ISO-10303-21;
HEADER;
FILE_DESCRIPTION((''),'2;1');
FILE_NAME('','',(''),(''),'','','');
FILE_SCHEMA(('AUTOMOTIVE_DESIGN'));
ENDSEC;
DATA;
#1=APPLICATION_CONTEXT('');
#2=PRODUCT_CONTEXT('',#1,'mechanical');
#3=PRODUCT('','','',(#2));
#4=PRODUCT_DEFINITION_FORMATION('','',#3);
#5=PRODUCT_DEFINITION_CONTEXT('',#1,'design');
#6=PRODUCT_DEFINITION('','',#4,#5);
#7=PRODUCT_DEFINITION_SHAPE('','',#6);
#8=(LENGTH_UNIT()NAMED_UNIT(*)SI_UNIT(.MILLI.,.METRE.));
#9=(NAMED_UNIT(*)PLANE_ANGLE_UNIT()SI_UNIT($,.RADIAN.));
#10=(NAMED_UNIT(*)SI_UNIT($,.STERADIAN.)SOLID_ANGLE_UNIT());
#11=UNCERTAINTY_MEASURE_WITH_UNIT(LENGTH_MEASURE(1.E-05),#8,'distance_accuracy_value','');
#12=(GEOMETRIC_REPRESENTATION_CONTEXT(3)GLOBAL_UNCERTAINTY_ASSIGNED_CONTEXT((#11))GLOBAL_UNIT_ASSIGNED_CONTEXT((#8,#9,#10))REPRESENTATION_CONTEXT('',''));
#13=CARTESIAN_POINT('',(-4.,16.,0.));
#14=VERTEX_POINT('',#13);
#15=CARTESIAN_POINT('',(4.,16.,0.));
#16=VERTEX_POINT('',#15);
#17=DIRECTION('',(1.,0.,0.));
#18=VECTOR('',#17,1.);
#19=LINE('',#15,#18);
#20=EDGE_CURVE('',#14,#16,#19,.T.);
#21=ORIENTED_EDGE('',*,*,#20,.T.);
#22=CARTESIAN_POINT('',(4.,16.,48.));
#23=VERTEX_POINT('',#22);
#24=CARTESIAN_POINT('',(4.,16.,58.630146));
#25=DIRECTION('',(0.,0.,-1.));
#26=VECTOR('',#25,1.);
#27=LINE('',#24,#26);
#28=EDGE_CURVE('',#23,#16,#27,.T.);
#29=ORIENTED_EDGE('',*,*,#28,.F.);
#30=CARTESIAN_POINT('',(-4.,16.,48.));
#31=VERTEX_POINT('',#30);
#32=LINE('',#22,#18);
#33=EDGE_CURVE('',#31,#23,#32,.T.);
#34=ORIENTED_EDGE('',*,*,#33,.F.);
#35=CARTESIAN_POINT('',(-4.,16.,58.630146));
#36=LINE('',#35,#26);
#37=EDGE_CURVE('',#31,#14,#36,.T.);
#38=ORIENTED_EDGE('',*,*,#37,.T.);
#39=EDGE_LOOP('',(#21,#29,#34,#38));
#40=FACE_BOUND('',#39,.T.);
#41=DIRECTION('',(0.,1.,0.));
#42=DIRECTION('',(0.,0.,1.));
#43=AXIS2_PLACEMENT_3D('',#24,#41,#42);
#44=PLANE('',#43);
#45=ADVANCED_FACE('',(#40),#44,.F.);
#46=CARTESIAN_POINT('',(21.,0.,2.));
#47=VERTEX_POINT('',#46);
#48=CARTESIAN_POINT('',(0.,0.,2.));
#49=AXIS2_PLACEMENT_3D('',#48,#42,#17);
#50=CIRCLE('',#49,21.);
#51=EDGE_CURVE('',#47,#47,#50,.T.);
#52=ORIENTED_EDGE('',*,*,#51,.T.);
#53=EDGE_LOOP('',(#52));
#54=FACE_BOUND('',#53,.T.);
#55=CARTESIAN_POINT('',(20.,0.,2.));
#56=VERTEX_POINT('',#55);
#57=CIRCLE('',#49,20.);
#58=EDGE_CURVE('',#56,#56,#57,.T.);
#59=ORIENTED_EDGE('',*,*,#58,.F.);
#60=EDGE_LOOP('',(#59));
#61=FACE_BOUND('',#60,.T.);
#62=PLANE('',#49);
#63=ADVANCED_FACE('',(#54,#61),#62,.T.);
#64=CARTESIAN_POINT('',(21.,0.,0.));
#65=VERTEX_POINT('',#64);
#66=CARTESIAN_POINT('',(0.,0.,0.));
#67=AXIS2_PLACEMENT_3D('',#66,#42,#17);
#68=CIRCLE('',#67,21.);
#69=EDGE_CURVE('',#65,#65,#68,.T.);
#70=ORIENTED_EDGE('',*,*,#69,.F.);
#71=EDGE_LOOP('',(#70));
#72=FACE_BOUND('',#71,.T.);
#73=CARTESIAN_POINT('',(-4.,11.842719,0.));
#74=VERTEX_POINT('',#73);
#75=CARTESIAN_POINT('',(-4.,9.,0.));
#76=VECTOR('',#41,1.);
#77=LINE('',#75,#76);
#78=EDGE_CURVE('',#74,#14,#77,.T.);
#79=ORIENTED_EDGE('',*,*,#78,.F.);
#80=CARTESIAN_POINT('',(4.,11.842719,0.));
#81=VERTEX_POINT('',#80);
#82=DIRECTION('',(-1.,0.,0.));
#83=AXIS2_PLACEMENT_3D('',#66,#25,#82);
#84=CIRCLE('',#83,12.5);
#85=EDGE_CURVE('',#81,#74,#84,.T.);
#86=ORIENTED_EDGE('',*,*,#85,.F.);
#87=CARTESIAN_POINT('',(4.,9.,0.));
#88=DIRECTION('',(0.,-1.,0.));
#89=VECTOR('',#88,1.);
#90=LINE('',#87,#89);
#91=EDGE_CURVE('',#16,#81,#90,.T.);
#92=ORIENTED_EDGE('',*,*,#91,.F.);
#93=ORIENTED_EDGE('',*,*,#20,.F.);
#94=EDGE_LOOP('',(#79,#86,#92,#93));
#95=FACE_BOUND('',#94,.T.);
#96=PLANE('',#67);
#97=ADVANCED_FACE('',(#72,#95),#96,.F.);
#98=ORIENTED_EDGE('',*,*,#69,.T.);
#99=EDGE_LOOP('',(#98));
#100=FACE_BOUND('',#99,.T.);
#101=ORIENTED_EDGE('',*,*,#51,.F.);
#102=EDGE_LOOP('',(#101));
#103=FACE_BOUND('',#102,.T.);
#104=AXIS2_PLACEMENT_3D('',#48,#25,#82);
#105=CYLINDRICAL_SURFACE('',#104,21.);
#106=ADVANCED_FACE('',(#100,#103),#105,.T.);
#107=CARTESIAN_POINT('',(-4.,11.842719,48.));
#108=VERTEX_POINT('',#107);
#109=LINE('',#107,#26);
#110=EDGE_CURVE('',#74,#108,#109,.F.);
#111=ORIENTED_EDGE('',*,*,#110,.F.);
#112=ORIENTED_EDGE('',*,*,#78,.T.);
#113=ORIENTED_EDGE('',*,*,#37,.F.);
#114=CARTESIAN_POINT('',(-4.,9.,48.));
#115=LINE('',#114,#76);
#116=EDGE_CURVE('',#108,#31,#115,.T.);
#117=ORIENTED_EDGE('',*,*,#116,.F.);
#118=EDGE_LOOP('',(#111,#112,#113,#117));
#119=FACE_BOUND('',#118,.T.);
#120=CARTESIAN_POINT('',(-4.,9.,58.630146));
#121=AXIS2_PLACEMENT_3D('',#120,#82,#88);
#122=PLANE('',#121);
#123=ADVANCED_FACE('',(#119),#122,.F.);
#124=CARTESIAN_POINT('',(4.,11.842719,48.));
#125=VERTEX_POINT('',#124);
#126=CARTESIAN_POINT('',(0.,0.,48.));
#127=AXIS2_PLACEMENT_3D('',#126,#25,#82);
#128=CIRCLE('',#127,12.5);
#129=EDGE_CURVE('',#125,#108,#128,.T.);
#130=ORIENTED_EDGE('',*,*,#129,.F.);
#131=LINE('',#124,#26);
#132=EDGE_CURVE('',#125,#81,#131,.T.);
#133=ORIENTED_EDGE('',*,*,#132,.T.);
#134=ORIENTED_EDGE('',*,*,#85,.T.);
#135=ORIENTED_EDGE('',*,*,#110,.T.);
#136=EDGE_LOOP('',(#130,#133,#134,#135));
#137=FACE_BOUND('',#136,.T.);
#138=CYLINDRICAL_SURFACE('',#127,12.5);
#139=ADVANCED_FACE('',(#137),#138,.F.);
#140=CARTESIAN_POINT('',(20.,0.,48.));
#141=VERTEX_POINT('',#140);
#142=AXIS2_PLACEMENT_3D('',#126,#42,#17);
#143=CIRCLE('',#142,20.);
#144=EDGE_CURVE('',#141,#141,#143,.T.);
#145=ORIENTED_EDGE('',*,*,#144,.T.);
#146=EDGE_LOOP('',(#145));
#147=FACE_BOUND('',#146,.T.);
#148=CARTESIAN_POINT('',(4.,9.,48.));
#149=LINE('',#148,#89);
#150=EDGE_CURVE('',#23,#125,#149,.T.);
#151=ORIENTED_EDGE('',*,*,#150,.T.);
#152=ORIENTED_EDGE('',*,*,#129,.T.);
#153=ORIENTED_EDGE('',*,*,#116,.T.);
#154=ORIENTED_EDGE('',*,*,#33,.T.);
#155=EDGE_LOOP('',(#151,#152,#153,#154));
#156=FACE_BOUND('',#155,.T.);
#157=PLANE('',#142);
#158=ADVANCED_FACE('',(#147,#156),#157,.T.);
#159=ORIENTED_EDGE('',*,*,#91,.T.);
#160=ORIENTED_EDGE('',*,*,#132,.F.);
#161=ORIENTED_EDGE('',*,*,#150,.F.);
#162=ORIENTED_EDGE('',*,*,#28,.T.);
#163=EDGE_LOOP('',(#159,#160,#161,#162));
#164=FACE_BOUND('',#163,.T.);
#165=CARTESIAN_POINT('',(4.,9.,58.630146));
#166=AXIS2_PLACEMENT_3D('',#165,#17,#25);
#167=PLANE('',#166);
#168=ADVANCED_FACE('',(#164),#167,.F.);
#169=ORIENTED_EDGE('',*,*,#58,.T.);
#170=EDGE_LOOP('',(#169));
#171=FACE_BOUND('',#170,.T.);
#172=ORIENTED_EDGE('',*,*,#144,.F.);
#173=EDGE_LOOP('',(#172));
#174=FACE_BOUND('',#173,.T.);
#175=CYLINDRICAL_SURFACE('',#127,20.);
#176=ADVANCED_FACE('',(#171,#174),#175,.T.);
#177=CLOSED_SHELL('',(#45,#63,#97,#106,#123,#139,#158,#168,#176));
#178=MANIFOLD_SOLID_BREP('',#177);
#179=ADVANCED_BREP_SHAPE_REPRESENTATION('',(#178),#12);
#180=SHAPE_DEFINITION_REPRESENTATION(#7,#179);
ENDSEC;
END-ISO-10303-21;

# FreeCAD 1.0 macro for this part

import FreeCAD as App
import Part
import Sketcher
Q = App.Units.Quantity

doc = App.newDocument("Part")
body = doc.addObject("PartDesign::Body", "Body")

# Sketch on XY plane
sketch1 = body.newObject("Sketcher::SketchObject", "Sketch")
sketch1.AttachmentSupport = (doc.getObject("XY_Plane"), [""])
sketch1.MapMode = "FlatFace"
sketch1.addGeometry(Part.Circle(App.Vector(0, 0, 0), App.Vector(0, 0, 1), 21), False)
sketch1.addConstraint([
    Sketcher.Constraint("Coincident", 0, 3, -1, 1),
    Sketcher.Constraint("Diameter", 0, Q("42 mm")),
])
pad1 = body.newObject("PartDesign::Pad", "Pad")
pad1.Profile = sketch1
pad1.Length = 2

# Sketch on XY plane
sketch2 = body.newObject("Sketcher::SketchObject", "Sketch001")
sketch2.AttachmentSupport = (doc.getObject("XY_Plane"), [""])
sketch2.MapMode = "FlatFace"
sketch2.AttachmentOffset = App.Placement(App.Vector(0, 0, 2), App.Rotation())
sketch2.addGeometry(Part.Circle(App.Vector(0, 0, 0), App.Vector(0, 0, 1), 20), False)
sketch2.addConstraint([
    Sketcher.Constraint("Coincident", 0, 3, -1, 1),
    Sketcher.Constraint("Diameter", 0, Q("40 mm")),
])
pad2 = body.newObject("PartDesign::Pad", "Pad001")
pad2.Profile = sketch2
pad2.Length = 46

# Sketch on XY plane
sketch3 = body.newObject("Sketcher::SketchObject", "Sketch002")
sketch3.AttachmentSupport = (doc.getObject("XY_Plane"), [""])
sketch3.MapMode = "FlatFace"
sketch3.addGeometry(Part.Circle(App.Vector(0, 0, 0), App.Vector(0, 0, 1), 12), False)
sketch3.addConstraint([
    Sketcher.Constraint("Coincident", 0, 3, -1, 1),
    Sketcher.Constraint("Diameter", 0, Q("25 mm")),
])
pocket1 = body.newObject("PartDesign::Pocket", "Pocket")
pocket1.Profile = sketch3
pocket1.Type = "ThroughAll"
pocket1.Reversed = True

# Sketch on XY plane
sketch4 = body.newObject("Sketcher::SketchObject", "Sketch003")
sketch4.AttachmentSupport = (doc.getObject("XY_Plane"), [""])
sketch4.MapMode = "FlatFace"
sketch4.addGeometry([
    Part.LineSegment(App.Vector(4, 16, 0), App.Vector(4, 9, 0)),
    Part.LineSegment(App.Vector(4, 9, 0), App.Vector(-4, 9, 0)),
    Part.LineSegment(App.Vector(-4, 9, 0), App.Vector(-4, 16, 0)),
    Part.LineSegment(App.Vector(-4, 16, 0), App.Vector(4, 16, 0)),
], False)
sketch4.addConstraint([
    Sketcher.Constraint("Coincident", 0, 2, 1, 1),
    Sketcher.Constraint("Coincident", 1, 2, 2, 1),
    Sketcher.Constraint("Coincident", 2, 2, 3, 1),
    Sketcher.Constraint("Coincident", 3, 2, 0, 1),
    Sketcher.Constraint("Vertical", 0),
    Sketcher.Constraint("Horizontal", 1),
    Sketcher.Constraint("Vertical", 2),
    Sketcher.Constraint("Horizontal", 3),
    Sketcher.Constraint("DistanceX", 1, 2, 1, 1, Q("8 mm")),
    Sketcher.Constraint("DistanceY", 0, 2, 0, 1, Q("7 mm")),
    Sketcher.Constraint("DistanceX", -1, 1, 0, 2, Q("4 mm")),
    Sketcher.Constraint("DistanceY", -1, 1, 0, 2, Q("9 mm")),
])
pocket2 = body.newObject("PartDesign::Pocket", "Pocket001")
pocket2.Profile = sketch4
pocket2.Length = 48
pocket2.Reversed = True

doc.recompute()
